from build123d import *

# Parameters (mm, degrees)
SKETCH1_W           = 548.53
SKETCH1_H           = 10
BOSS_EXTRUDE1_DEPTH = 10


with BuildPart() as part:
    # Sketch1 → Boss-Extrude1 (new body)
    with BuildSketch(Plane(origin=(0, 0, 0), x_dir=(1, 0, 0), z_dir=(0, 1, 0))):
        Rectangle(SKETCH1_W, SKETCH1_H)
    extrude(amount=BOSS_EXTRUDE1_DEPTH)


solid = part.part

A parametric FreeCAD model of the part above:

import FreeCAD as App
import Part
import Sketcher

V = App.Vector
Q = App.Units.Quantity

doc = App.newDocument("Part")
params = doc.addObject("Spreadsheet::Sheet", "Params")
for row, (alias, value) in enumerate([
    ("sketch1_height", "10 mm"),
    ("sketch1_width", "548.53 mm"),
    ("pad1_length", "10 mm"),
], start=1):
    params.set(f"A{row}", alias)
    params.set(f"B{row}", "=" + value)
    params.setAlias(f"B{row}", alias)

body = doc.addObject("PartDesign::Body", "Body")

sketch1 = doc.addObject("Sketcher::SketchObject", "Sketch")
body.addObject(sketch1)
sketch1.AttachmentSupport = (doc.XZ_Plane, [""])
sketch1.MapMode = "FlatFace"
sketch1.addGeometry(Part.LineSegment(V(-274, -5, 0), V(-274, 5, 0)), False)
sketch1.addGeometry(Part.LineSegment(V(-274, 5, 0), V(274, 5, 0)), False)
sketch1.addGeometry(Part.LineSegment(V(274, 5, 0), V(274, -5, 0)), False)
sketch1.addGeometry(Part.LineSegment(V(274, -5, 0), V(-274, -5, 0)), False)
sketch1.addConstraint(Sketcher.Constraint("Coincident", 0, 2, 1, 1))
sketch1.addConstraint(Sketcher.Constraint("Coincident", 1, 2, 2, 1))
sketch1.addConstraint(Sketcher.Constraint("Coincident", 2, 2, 3, 1))
sketch1.addConstraint(Sketcher.Constraint("Coincident", 3, 2, 0, 1))
sketch1.addConstraint(Sketcher.Constraint("Vertical", 0))
sketch1.addConstraint(Sketcher.Constraint("Horizontal", 1))
sketch1.addConstraint(Sketcher.Constraint("Vertical", 2))
sketch1.addConstraint(Sketcher.Constraint("Horizontal", 3))
sketch1.addConstraint(Sketcher.Constraint("Symmetric", 0, 2, 2, 2, -1, 1))
sketch1.addConstraint(Sketcher.Constraint("DistanceY", 0, 1, 0, 2, Q("10 mm")))
sketch1.addConstraint(Sketcher.Constraint("DistanceX", 1, 1, 1, 2, Q("548.53 mm")))
sketch1.setExpression("Constraints[9]", "Params.sketch1_height")
sketch1.setExpression("Constraints[10]", "Params.sketch1_width")
pad1 = doc.addObject("PartDesign::Pad", "Pad")
body.addObject(pad1)
pad1.Profile = sketch1
pad1.setExpression("Length", "Params.pad1_length")
pad1.Reversed = True

doc.recompute()
